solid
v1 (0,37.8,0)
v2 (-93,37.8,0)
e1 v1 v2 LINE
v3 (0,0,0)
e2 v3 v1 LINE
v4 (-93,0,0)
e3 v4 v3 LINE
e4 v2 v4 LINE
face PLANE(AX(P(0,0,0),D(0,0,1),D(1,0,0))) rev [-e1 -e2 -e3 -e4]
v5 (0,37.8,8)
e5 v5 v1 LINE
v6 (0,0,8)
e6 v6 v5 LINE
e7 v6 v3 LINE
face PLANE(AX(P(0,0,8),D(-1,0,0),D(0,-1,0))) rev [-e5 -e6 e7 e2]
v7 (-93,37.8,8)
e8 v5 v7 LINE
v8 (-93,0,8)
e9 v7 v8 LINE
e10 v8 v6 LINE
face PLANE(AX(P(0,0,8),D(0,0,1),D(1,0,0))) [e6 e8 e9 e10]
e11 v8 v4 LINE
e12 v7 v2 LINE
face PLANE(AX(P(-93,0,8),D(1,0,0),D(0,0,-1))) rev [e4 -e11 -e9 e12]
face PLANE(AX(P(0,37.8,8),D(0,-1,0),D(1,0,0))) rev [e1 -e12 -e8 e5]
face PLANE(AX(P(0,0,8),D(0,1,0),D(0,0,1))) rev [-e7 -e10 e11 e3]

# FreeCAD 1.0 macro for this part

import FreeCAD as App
import Part
import Sketcher
from FreeCAD import Vector


def add_polygon(sketch, points):
    """Adds a closed chain of lines whose ends are joined by coincident constraints."""
    first, n = sketch.GeometryCount, len(points)
    for a, b in zip(points, points[1:] + points[:1]):
        sketch.addGeometry(Part.LineSegment(App.Vector(*a, 0), App.Vector(*b, 0)), False)
    for i in range(n):
        sketch.addConstraint(Sketcher.Constraint("Coincident", first + i, 2, first + (i + 1) % n, 1))

doc = App.newDocument("Part")
body = doc.addObject("PartDesign::Body", "Body")

# Sketch on XY plane
sketch1 = body.newObject("Sketcher::SketchObject", "Sketch")
sketch1.AttachmentSupport = (doc.getObject("XY_Plane"), [""])
sketch1.MapMode = "FlatFace"
add_polygon(sketch1, [(-93, 38), (-93, 0), (0, 0), (0, 38)])  # lines 0-3
sketch1.addConstraint([
    Sketcher.Constraint("Vertical", 0),
    Sketcher.Constraint("Horizontal", 1),
    Sketcher.Constraint("Vertical", 2),
    Sketcher.Constraint("Horizontal", 3),
    Sketcher.Constraint("Coincident", 1, 2, -1, 1),
    Sketcher.Constraint("DistanceX", 1, 1, 1, 2, 93.0),
    Sketcher.Constraint("DistanceY", 0, 2, 0, 1, 37.8),
])
pad1 = body.newObject("PartDesign::Pad", "Pad")
pad1.Profile = sketch1
pad1.Length = 8

doc.recompute()
